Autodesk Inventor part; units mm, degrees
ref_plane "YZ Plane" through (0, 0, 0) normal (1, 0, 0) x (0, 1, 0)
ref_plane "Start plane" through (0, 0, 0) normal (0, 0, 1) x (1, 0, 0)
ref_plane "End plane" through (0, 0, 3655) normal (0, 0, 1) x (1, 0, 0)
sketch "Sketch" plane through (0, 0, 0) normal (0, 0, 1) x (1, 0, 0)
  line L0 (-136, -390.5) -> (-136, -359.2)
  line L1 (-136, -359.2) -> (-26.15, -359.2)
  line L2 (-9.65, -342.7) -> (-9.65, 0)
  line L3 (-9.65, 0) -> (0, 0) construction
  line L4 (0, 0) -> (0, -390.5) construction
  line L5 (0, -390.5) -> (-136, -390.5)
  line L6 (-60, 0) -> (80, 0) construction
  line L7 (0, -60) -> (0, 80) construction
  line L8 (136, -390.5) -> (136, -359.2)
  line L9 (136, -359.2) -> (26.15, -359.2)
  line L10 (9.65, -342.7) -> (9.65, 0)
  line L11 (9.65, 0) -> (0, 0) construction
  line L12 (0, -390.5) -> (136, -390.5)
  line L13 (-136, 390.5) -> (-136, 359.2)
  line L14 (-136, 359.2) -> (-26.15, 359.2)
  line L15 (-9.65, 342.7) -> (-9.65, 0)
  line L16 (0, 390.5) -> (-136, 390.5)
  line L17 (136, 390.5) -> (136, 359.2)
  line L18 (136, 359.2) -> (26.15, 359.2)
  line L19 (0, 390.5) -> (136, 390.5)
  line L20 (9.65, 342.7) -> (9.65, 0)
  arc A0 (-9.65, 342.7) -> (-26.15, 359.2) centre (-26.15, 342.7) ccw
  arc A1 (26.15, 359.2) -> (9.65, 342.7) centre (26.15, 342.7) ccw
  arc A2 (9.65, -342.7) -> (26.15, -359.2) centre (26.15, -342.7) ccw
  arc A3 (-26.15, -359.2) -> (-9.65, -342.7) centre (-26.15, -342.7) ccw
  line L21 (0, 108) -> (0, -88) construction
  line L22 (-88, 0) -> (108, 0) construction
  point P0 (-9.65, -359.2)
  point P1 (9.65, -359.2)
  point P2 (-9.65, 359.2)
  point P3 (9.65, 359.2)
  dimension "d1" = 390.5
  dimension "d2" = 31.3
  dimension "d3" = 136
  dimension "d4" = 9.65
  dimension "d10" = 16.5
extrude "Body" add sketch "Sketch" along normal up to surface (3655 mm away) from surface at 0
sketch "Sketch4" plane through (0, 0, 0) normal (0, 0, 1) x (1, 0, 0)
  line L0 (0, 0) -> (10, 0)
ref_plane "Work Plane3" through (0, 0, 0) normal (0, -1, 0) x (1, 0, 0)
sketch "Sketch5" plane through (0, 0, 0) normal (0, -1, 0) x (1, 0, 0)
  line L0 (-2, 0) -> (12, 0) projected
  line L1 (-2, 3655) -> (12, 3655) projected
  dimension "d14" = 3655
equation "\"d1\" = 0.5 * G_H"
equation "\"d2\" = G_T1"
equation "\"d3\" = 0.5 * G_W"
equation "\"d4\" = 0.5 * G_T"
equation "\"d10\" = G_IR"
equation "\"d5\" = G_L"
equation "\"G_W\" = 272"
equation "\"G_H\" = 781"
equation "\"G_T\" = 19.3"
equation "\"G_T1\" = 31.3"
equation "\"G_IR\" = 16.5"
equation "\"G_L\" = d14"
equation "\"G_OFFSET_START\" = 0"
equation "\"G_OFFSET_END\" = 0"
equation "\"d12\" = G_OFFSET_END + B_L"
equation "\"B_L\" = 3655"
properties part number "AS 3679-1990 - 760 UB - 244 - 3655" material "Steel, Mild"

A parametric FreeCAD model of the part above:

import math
import FreeCAD as App
import Part
import Sketcher
from FreeCAD import Vector

doc = App.newDocument("Part")
body = doc.addObject("PartDesign::Body", "Body")

# Sketch on XY plane
sketch1 = body.newObject("Sketcher::SketchObject", "Sketch")
sketch1.AttachmentSupport = (doc.getObject("XY_Plane"), [""])
sketch1.MapMode = "FlatFace"
sketch1.addGeometry([
    Part.LineSegment(Vector(-136, -359, 0), Vector(-136, -390, 0)),  # 0
    Part.LineSegment(Vector(-136, -390, 0), Vector(136, -390, 0)),  # 1
    Part.LineSegment(Vector(136, -390, 0), Vector(136, -359, 0)),  # 2
    Part.LineSegment(Vector(136, -359, 0), Vector(26, -359, 0)),  # 3
    Part.ArcOfCircle(Part.Circle(Vector(26, -343, 0), Vector(0, 0, 1), 16), math.radians(180), math.radians(270)),  # 4
    Part.LineSegment(Vector(10, -343, 0), Vector(10, 343, 0)),  # 5
    Part.ArcOfCircle(Part.Circle(Vector(26, 343, 0), Vector(0, 0, 1), 16), math.radians(90), math.radians(180)),  # 6
    Part.LineSegment(Vector(26, 359, 0), Vector(136, 359, 0)),  # 7
    Part.LineSegment(Vector(136, 359, 0), Vector(136, 390, 0)),  # 8
    Part.LineSegment(Vector(136, 390, 0), Vector(-136, 390, 0)),  # 9
    Part.LineSegment(Vector(-136, 390, 0), Vector(-136, 359, 0)),  # 10
    Part.LineSegment(Vector(-136, 359, 0), Vector(-26, 359, 0)),  # 11
    Part.ArcOfCircle(Part.Circle(Vector(-26, 343, 0), Vector(0, 0, 1), 16), math.radians(0), math.radians(90)),  # 12
    Part.LineSegment(Vector(-10, 343, 0), Vector(-10, -343, 0)),  # 13
    Part.ArcOfCircle(Part.Circle(Vector(-26, -343, 0), Vector(0, 0, 1), 16), math.radians(-90), math.radians(0)),  # 14
    Part.LineSegment(Vector(-26, -359, 0), Vector(-136, -359, 0)),  # 15
], False)
sketch1.addConstraint([
    Sketcher.Constraint("Coincident", 0, 2, 1, 1),
    Sketcher.Constraint("Coincident", 1, 2, 2, 1),
    Sketcher.Constraint("Coincident", 2, 2, 3, 1),
    Sketcher.Constraint("Tangent", 3, 2, 4, 2),
    Sketcher.Constraint("Tangent", 4, 1, 5, 1),
    Sketcher.Constraint("Tangent", 5, 2, 6, 2),
    Sketcher.Constraint("Tangent", 6, 1, 7, 1),
    Sketcher.Constraint("Coincident", 7, 2, 8, 1),
    Sketcher.Constraint("Coincident", 8, 2, 9, 1),
    Sketcher.Constraint("Coincident", 9, 2, 10, 1),
    Sketcher.Constraint("Coincident", 10, 2, 11, 1),
    Sketcher.Constraint("Tangent", 11, 2, 12, 2),
    Sketcher.Constraint("Tangent", 12, 1, 13, 1),
    Sketcher.Constraint("Tangent", 13, 2, 14, 2),
    Sketcher.Constraint("Tangent", 14, 1, 15, 1),
    Sketcher.Constraint("Coincident", 15, 2, 0, 1),
    Sketcher.Constraint("Vertical", 0),
    Sketcher.Constraint("Horizontal", 1),
    Sketcher.Constraint("Vertical", 2),
    Sketcher.Constraint("Horizontal", 3),
    Sketcher.Constraint("Vertical", 5),
    Sketcher.Constraint("Horizontal", 7),
    Sketcher.Constraint("Vertical", 8),
    Sketcher.Constraint("Horizontal", 9),
    Sketcher.Constraint("Vertical", 10),
    Sketcher.Constraint("Horizontal", 11),
    Sketcher.Constraint("Vertical", 13),
    Sketcher.Constraint("Horizontal", 15),
    Sketcher.Constraint("Equal", 4, 6),
    Sketcher.Constraint("Equal", 6, 12),
    Sketcher.Constraint("Equal", 12, 14),
    Sketcher.Constraint("Symmetric", 4, 3, 12, 3, -1, 1),
    Sketcher.Constraint("Symmetric", 0, 2, 8, 2, -1, 1),
    Sketcher.Constraint("Symmetric", 7, 2, 10, 2, -2),
    Sketcher.Constraint("Symmetric", 2, 2, 15, 2, -2),
    Sketcher.Constraint("Radius", 4, 16.5),
    Sketcher.Constraint("DistanceY", 0, 2, 0, 1, 31.3),
    Sketcher.Constraint("DistanceX", 0, 2, -1, 1, 136.0),
    Sketcher.Constraint("DistanceY", 0, 2, -1, 1, 390.5),
    Sketcher.Constraint("DistanceX", -1, 1, 4, 1, 9.65),
])
pad1 = body.newObject("PartDesign::Pad", "Pad")
pad1.Profile = sketch1
pad1.Length = 3655

doc.recompute()
